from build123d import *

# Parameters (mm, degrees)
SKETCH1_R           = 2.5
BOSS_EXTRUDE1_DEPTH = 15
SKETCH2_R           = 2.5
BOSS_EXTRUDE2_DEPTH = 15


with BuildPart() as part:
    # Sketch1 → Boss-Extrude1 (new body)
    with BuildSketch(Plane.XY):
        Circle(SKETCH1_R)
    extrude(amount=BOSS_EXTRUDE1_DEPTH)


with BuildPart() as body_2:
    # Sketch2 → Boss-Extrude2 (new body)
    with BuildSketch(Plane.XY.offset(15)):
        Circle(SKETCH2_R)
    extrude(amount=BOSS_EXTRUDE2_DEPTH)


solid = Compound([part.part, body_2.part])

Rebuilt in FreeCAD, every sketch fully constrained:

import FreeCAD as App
import Part
import Sketcher

V = App.Vector
Q = App.Units.Quantity

doc = App.newDocument("Part")
body = doc.addObject("PartDesign::Body", "Body")

sketch1 = body.newObject("Sketcher::SketchObject", "Sketch")
sketch1.AttachmentSupport = (doc.getObject("XY_Plane"), [""])
sketch1.MapMode = "FlatFace"
sketch1.addGeometry(Part.Circle(V(0, 0, 0), V(0, 0, 1), 2.5), False)
sketch1.addConstraint([
    Sketcher.Constraint("Coincident", 0, 3, -1, 1),
    Sketcher.Constraint("Diameter", 0, Q("5 mm")),
])
pad1 = body.newObject("PartDesign::Pad", "Pad")
pad1.Profile = sketch1
pad1.Length = 15
body2 = doc.addObject("PartDesign::Body", "Body001")

sketch2 = body2.newObject("Sketcher::SketchObject", "Sketch001")
sketch2.AttachmentSupport = (doc.getObject("XY_Plane001"), [""])
sketch2.MapMode = "FlatFace"
sketch2.AttachmentOffset = App.Placement(V(0, 0, 15), App.Rotation())
sketch2.addGeometry(Part.Circle(V(0, 0, 0), V(0, 0, 1), 2.5), False)
sketch2.addConstraint([
    Sketcher.Constraint("Coincident", 0, 3, -1, 1),
    Sketcher.Constraint("Diameter", 0, Q("5 mm")),
])
pad2 = body2.newObject("PartDesign::Pad", "Pad001")
pad2.Profile = sketch2
pad2.Length = 15

doc.recompute()
